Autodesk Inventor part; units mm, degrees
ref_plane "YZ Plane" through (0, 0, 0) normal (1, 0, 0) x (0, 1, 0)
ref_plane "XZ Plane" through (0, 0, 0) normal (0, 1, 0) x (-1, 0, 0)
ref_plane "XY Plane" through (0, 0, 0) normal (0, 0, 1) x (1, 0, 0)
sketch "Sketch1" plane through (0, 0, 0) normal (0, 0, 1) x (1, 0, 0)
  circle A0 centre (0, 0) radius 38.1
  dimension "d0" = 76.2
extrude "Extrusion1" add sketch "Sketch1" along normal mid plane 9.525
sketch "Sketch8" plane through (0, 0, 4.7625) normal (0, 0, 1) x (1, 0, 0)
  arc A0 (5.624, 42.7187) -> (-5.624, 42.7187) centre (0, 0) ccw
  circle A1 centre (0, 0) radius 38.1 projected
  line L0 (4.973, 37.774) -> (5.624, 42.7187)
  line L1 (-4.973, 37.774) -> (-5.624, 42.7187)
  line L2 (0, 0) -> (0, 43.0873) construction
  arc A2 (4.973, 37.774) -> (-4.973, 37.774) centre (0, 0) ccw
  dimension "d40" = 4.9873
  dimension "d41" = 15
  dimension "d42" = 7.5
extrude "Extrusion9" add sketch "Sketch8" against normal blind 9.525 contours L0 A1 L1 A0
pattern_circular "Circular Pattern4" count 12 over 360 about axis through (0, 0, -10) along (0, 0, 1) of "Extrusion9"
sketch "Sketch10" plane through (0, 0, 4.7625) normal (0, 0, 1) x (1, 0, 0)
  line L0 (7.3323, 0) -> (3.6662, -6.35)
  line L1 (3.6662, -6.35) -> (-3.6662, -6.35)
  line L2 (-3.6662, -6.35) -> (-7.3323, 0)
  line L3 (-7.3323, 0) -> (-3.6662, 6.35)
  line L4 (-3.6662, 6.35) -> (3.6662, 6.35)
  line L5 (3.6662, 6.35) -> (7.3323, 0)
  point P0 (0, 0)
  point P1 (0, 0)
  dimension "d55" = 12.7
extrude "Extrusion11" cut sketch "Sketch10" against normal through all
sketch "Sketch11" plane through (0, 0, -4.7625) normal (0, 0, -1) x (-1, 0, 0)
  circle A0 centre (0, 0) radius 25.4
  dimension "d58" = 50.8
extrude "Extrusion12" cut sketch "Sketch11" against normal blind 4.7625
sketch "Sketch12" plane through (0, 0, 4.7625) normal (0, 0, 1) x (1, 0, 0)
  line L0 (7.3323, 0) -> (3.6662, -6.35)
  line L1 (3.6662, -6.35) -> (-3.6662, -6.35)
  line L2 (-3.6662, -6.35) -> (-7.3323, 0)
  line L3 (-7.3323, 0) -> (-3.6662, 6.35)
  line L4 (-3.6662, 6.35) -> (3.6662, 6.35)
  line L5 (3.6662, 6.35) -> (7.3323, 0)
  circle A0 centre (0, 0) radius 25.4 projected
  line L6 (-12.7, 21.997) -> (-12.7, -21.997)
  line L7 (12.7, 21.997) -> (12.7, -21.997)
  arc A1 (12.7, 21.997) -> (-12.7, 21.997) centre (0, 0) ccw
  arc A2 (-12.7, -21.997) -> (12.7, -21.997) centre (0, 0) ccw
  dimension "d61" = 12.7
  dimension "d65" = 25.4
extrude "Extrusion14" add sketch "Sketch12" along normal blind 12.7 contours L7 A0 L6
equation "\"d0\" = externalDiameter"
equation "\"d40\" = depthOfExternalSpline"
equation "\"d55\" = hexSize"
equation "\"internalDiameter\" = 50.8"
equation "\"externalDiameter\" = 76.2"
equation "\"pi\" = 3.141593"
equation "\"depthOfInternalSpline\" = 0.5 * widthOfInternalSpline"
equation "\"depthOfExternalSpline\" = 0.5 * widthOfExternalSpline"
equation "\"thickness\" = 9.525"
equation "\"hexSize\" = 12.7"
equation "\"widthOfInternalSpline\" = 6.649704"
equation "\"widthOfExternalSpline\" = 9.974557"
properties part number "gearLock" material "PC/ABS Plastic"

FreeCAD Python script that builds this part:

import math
import FreeCAD as App
import Part
import Sketcher

V = App.Vector
Q = App.Units.Quantity

doc = App.newDocument("Part")
params = doc.addObject("Spreadsheet::Sheet", "Params")
for row, (alias, value) in enumerate([
    ("sketch1_diameter", "3 in"),
    ("pad1_length", "0.375 in"),
    ("sketch2_radius", "1.5 in"),
    ("pad2_length", "0.375 in"),
    ("sketch4_diameter", "2 in"),
    ("pocket2_length", "0.1875 in"),
    ("sketch5_radius", "1 in"),
    ("pad3_length", "0.5 in"),
], start=1):
    params.set(f"A{row}", alias)
    params.set(f"B{row}", "=" + value)
    params.setAlias(f"B{row}", alias)

body = doc.addObject("PartDesign::Body", "Body")

# Sketch on XY plane
sketch1 = body.newObject("Sketcher::SketchObject", "Sketch")
sketch1.AttachmentSupport = (doc.getObject("XY_Plane"), [""])
sketch1.MapMode = "FlatFace"
sketch1.addGeometry(Part.Circle(V(0, 0, 0), V(0, 0, 1), 38), False)
sketch1.addConstraint([
    Sketcher.Constraint("Coincident", 0, 3, -1, 1),
    Sketcher.Constraint("Diameter", 0, Q("3 in")),
])
sketch1.setExpression("Constraints[1]", "Params.sketch1_diameter")
pad1 = body.newObject("PartDesign::Pad", "Pad")
pad1.Profile = sketch1
pad1.setExpression("Length", "Params.pad1_length")
pad1.Midplane = True

# Sketch on XY plane
sketch2 = body.newObject("Sketcher::SketchObject", "Sketch001")
sketch2.AttachmentSupport = (doc.getObject("XY_Plane"), [""])
sketch2.MapMode = "FlatFace"
sketch2.AttachmentOffset = App.Placement(V(0, 0, 0.1875 * 25.4), App.Rotation())
sketch2.addGeometry([
    Part.LineSegment(V(5, 37.8, 0), V(5.6, 42.7, 0)),
    Part.ArcOfCircle(Part.Circle(V(0, 0, 0), V(0, 0, 1), 43.1), math.radians(82.5), math.radians(97.5)),
    Part.LineSegment(V(-5.6, 42.7, 0), V(-5, 37.8, 0)),
    Part.ArcOfCircle(Part.Circle(V(0, 0, 0), V(0, 0, 1), 38.1), math.radians(82.5), math.radians(97.5)),
], False)
sketch2.addConstraint([
    Sketcher.Constraint("Coincident", 0, 2, 1, 1),
    Sketcher.Constraint("Coincident", 1, 2, 2, 1),
    Sketcher.Constraint("Coincident", 2, 2, 3, 2),
    Sketcher.Constraint("Coincident", 3, 1, 0, 1),
    Sketcher.Constraint("Coincident", 1, 3, -1, 1),
    Sketcher.Constraint("Coincident", 3, 3, -1, 1),
    Sketcher.Constraint("Horizontal", 0, 2, 1, 2),
    Sketcher.Constraint("Horizontal", 2, 2, 3, 1),
    Sketcher.Constraint("Radius", 3, Q("1.5 in")),
    Sketcher.Constraint("Angle", 0, Q("82.4998 deg")),
    Sketcher.Constraint("Distance", 0, Q("4.9874 mm")),
    Sketcher.Constraint("DistanceX", 2, 2, 0, 2, Q("0.4172 in")),
])
sketch2.setExpression("Constraints[8]", "Params.sketch2_radius")
pad2 = body.newObject("PartDesign::Pad", "Pad001")
pad2.Profile = sketch2
pad2.setExpression("Length", "Params.pad2_length")
pad2.Reversed = True
doc.recompute()

polarpattern = body.newObject("PartDesign::PolarPattern", "PolarPattern")
polarpattern.Originals = [pad2]
polarpattern.Axis = (doc.getObject("Z_Axis"), [""])
polarpattern.Angle = 360
polarpattern.Occurrences = 12
body.Tip = polarpattern

# Sketch on XY plane
sketch3 = body.newObject("Sketcher::SketchObject", "Sketch002")
sketch3.AttachmentSupport = (doc.getObject("XY_Plane"), [""])
sketch3.MapMode = "FlatFace"
sketch3.AttachmentOffset = App.Placement(V(0, 0, 0.1875 * 25.4), App.Rotation())
sketch3.addGeometry([
    Part.LineSegment(V(4, -6, 0), V(7, 0, 0)),  # 0
    Part.LineSegment(V(7, 0, 0), V(4, 6, 0)),  # 1
    Part.LineSegment(V(4, 6, 0), V(-4, 6, 0)),  # 2
    Part.LineSegment(V(-4, 6, 0), V(-7, 0, 0)),  # 3
    Part.LineSegment(V(-7, 0, 0), V(-4, -6, 0)),  # 4
    Part.LineSegment(V(-4, -6, 0), V(4, -6, 0)),  # 5
], False)
sketch3.addConstraint([
    Sketcher.Constraint("Coincident", 0, 2, 1, 1),
    Sketcher.Constraint("Coincident", 1, 2, 2, 1),
    Sketcher.Constraint("Coincident", 2, 2, 3, 1),
    Sketcher.Constraint("Coincident", 3, 2, 4, 1),
    Sketcher.Constraint("Coincident", 4, 2, 5, 1),
    Sketcher.Constraint("Coincident", 5, 2, 0, 1),
    Sketcher.Constraint("Horizontal", 2),
    Sketcher.Constraint("Horizontal", 5),
    Sketcher.Constraint("Symmetric", 0, 2, 3, 2, -1, 1),
    Sketcher.Constraint("Symmetric", 1, 2, 4, 2, -1, 1),
    Sketcher.Constraint("PointOnObject", 0, 2, -1),
    Sketcher.Constraint("Parallel", 0, 3),
    Sketcher.Constraint("Vertical", 2, 2, 4, 2),
    Sketcher.Constraint("DistanceY", 4, 2, 2, 2, Q("0.5 in")),
    Sketcher.Constraint("Angle", 0, Q("60.0005 deg")),
    Sketcher.Constraint("DistanceX", 2, 2, 0, 2, Q("0.433 in")),
])
pocket1 = body.newObject("PartDesign::Pocket", "Pocket")
pocket1.Profile = sketch3
pocket1.Type = "ThroughAll"

# Sketch on XY plane
sketch4 = body.newObject("Sketcher::SketchObject", "Sketch003")
sketch4.AttachmentSupport = (doc.getObject("XY_Plane"), [""])
sketch4.MapMode = "FlatFace"
sketch4.AttachmentOffset = App.Placement(V(0, 0, -0.1875 * 25.4), App.Rotation())
sketch4.addGeometry(Part.Circle(V(0, 0, 0), V(0, 0, 1), 25), False)
sketch4.addConstraint([
    Sketcher.Constraint("Coincident", 0, 3, -1, 1),
    Sketcher.Constraint("Diameter", 0, Q("2 in")),
])
sketch4.setExpression("Constraints[1]", "Params.sketch4_diameter")
pocket2 = body.newObject("PartDesign::Pocket", "Pocket001")
pocket2.Profile = sketch4
pocket2.setExpression("Length", "Params.pocket2_length")
pocket2.Reversed = True

# Sketch on XY plane
sketch5 = body.newObject("Sketcher::SketchObject", "Sketch004")
sketch5.AttachmentSupport = (doc.getObject("XY_Plane"), [""])
sketch5.MapMode = "FlatFace"
sketch5.AttachmentOffset = App.Placement(V(0, 0, 0.1875 * 25.4), App.Rotation())
sketch5.addGeometry([
    Part.LineSegment(V(13, -22, 0), V(13, 22, 0)),  # 0
    Part.ArcOfCircle(Part.Circle(V(0, 0, 0), V(0, 0, 1), 25), math.radians(60), math.radians(120)),  # 1
    Part.LineSegment(V(-13, 22, 0), V(-13, -22, 0)),  # 2
    Part.ArcOfCircle(Part.Circle(V(0, 0, 0), V(0, 0, 1), 25), math.radians(-120), math.radians(-60)),  # 3
    Part.LineSegment(V(4, 6, 0), V(7, 0, 0)),  # 4
    Part.LineSegment(V(7, 0, 0), V(4, -6, 0)),  # 5
    Part.LineSegment(V(4, -6, 0), V(-4, -6, 0)),  # 6
    Part.LineSegment(V(-4, -6, 0), V(-7, 0, 0)),  # 7
    Part.LineSegment(V(-7, 0, 0), V(-4, 6, 0)),  # 8
    Part.LineSegment(V(-4, 6, 0), V(4, 6, 0)),  # 9
], False)
sketch5.addConstraint([
    Sketcher.Constraint("Coincident", 0, 2, 1, 1),
    Sketcher.Constraint("Coincident", 1, 2, 2, 1),
    Sketcher.Constraint("Coincident", 2, 2, 3, 1),
    Sketcher.Constraint("Coincident", 3, 2, 0, 1),
    Sketcher.Constraint("Coincident", 4, 2, 5, 1),
    Sketcher.Constraint("Coincident", 5, 2, 6, 1),
    Sketcher.Constraint("Coincident", 6, 2, 7, 1),
    Sketcher.Constraint("Coincident", 7, 2, 8, 1),
    Sketcher.Constraint("Coincident", 8, 2, 9, 1),
    Sketcher.Constraint("Coincident", 9, 2, 4, 1),
    Sketcher.Constraint("Vertical", 0),
    Sketcher.Constraint("Vertical", 2),
    Sketcher.Constraint("Horizontal", 6),
    Sketcher.Constraint("Horizontal", 9),
    Sketcher.Constraint("Coincident", 1, 3, -1, 1),
    Sketcher.Constraint("Coincident", 3, 3, -1, 1),
    Sketcher.Constraint("Equal", 1, 3),
    Sketcher.Constraint("Symmetric", 4, 2, 7, 2, -1, 1),
    Sketcher.Constraint("Symmetric", 5, 2, 8, 2, -1, 1),
    Sketcher.Constraint("PointOnObject", 4, 2, -1),
    Sketcher.Constraint("Parallel", 4, 7),
    Sketcher.Constraint("Horizontal", 0, 2, 1, 2),
    Sketcher.Constraint("Vertical", 6, 2, 8, 2),
    Sketcher.Constraint("Radius", 1, Q("1 in")),
    Sketcher.Constraint("DistanceX", 1, 2, 0, 2, Q("1 in")),
    Sketcher.Constraint("DistanceY", 6, 2, 8, 2, Q("0.5 in")),
    Sketcher.Constraint("Angle", 4, Q("-60.0005 deg")),
    Sketcher.Constraint("DistanceX", 6, 2, 4, 2, Q("0.433 in")),
])
sketch5.setExpression("Constraints[23]", "Params.sketch5_radius")
pad3 = body.newObject("PartDesign::Pad", "Pad002")
pad3.Profile = sketch5
pad3.setExpression("Length", "Params.pad3_length")

doc.recompute()
